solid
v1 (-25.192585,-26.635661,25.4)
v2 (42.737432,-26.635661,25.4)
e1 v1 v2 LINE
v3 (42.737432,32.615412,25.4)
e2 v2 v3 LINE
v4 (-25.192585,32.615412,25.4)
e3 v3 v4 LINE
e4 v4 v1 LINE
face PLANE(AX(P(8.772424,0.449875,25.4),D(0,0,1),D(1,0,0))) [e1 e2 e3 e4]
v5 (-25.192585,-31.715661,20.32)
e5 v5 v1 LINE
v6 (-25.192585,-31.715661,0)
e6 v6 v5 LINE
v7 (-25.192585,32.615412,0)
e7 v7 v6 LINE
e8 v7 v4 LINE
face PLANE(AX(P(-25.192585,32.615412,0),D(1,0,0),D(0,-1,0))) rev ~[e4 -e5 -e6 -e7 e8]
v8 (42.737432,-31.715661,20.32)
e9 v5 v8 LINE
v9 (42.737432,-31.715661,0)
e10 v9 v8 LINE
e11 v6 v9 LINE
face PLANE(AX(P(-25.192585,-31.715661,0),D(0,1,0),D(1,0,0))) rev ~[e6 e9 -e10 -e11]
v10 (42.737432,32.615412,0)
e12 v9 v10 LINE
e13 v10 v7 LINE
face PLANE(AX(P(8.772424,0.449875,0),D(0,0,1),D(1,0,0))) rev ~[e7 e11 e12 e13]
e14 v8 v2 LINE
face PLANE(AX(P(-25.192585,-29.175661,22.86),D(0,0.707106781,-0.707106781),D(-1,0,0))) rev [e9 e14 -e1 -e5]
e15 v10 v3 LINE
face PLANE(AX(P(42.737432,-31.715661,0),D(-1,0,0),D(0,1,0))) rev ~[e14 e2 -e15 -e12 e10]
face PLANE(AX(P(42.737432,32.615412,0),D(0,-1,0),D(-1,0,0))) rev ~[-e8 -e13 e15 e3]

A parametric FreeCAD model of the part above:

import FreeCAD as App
import Part
import Sketcher
Q = App.Units.Quantity


def edges_at(feature, points):
    """Names of the edges that pass closest to the given points."""
    edges = feature.Shape.Edges
    near = lambda p: min(range(len(edges)), key=lambda i: edges[i].distToShape(Part.Vertex(*p))[0])
    return sorted({f"Edge{near(p) + 1}" for p in points})

doc = App.newDocument("Part")
body = doc.addObject("PartDesign::Body", "Body")

# Sketch on XY plane
sketch1 = body.newObject("Sketcher::SketchObject", "Sketch")
sketch1.AttachmentSupport = (doc.getObject("XY_Plane"), [""])
sketch1.MapMode = "FlatFace"
sketch1.addGeometry(Part.LineSegment(App.Vector(42.737432, 32.615412, 0), App.Vector(-25.192585, 32.615412, 0)), False)
sketch1.addGeometry(Part.LineSegment(App.Vector(-25.192585, 32.615412, 0), App.Vector(-25.192585, -31.715661, 0)), False)
sketch1.addGeometry(Part.LineSegment(App.Vector(-25.192585, -31.715661, 0), App.Vector(42.737432, -31.715661, 0)), False)
sketch1.addGeometry(Part.LineSegment(App.Vector(42.737432, -31.715661, 0), App.Vector(42.737432, 32.615412, 0)), False)
sketch1.addConstraint(Sketcher.Constraint("Coincident", 0, 2, 1, 1))
sketch1.addConstraint(Sketcher.Constraint("Coincident", 1, 2, 2, 1))
sketch1.addConstraint(Sketcher.Constraint("Coincident", 2, 2, 3, 1))
sketch1.addConstraint(Sketcher.Constraint("Coincident", 3, 2, 0, 1))
sketch1.addConstraint(Sketcher.Constraint("Horizontal", 0))
sketch1.addConstraint(Sketcher.Constraint("Vertical", 1))
sketch1.addConstraint(Sketcher.Constraint("Horizontal", 2))
sketch1.addConstraint(Sketcher.Constraint("Vertical", 3))
sketch1.addConstraint(Sketcher.Constraint("DistanceX", 0, 2, 0, 1, Q("67.930017 mm")))
sketch1.addConstraint(Sketcher.Constraint("DistanceY", 1, 2, 1, 1, Q("64.331073 mm")))
sketch1.addConstraint(Sketcher.Constraint("DistanceY", 1, 2, -1, 1, Q("31.715661 mm")))
sketch1.addConstraint(Sketcher.Constraint("DistanceX", -1, 1, 2, 2, Q("42.737432 mm")))
pad1 = body.newObject("PartDesign::Pad", "Pad")
pad1.Profile = sketch1
pad1.Length = Q("1 in")
doc.recompute()

chamfer = body.newObject("PartDesign::Chamfer", "Chamfer")
chamfer.Base = (pad1, edges_at(pad1, [(8.772, -31.716, 25.4)]))
chamfer.Size = Q("0.2 in")

doc.recompute()
